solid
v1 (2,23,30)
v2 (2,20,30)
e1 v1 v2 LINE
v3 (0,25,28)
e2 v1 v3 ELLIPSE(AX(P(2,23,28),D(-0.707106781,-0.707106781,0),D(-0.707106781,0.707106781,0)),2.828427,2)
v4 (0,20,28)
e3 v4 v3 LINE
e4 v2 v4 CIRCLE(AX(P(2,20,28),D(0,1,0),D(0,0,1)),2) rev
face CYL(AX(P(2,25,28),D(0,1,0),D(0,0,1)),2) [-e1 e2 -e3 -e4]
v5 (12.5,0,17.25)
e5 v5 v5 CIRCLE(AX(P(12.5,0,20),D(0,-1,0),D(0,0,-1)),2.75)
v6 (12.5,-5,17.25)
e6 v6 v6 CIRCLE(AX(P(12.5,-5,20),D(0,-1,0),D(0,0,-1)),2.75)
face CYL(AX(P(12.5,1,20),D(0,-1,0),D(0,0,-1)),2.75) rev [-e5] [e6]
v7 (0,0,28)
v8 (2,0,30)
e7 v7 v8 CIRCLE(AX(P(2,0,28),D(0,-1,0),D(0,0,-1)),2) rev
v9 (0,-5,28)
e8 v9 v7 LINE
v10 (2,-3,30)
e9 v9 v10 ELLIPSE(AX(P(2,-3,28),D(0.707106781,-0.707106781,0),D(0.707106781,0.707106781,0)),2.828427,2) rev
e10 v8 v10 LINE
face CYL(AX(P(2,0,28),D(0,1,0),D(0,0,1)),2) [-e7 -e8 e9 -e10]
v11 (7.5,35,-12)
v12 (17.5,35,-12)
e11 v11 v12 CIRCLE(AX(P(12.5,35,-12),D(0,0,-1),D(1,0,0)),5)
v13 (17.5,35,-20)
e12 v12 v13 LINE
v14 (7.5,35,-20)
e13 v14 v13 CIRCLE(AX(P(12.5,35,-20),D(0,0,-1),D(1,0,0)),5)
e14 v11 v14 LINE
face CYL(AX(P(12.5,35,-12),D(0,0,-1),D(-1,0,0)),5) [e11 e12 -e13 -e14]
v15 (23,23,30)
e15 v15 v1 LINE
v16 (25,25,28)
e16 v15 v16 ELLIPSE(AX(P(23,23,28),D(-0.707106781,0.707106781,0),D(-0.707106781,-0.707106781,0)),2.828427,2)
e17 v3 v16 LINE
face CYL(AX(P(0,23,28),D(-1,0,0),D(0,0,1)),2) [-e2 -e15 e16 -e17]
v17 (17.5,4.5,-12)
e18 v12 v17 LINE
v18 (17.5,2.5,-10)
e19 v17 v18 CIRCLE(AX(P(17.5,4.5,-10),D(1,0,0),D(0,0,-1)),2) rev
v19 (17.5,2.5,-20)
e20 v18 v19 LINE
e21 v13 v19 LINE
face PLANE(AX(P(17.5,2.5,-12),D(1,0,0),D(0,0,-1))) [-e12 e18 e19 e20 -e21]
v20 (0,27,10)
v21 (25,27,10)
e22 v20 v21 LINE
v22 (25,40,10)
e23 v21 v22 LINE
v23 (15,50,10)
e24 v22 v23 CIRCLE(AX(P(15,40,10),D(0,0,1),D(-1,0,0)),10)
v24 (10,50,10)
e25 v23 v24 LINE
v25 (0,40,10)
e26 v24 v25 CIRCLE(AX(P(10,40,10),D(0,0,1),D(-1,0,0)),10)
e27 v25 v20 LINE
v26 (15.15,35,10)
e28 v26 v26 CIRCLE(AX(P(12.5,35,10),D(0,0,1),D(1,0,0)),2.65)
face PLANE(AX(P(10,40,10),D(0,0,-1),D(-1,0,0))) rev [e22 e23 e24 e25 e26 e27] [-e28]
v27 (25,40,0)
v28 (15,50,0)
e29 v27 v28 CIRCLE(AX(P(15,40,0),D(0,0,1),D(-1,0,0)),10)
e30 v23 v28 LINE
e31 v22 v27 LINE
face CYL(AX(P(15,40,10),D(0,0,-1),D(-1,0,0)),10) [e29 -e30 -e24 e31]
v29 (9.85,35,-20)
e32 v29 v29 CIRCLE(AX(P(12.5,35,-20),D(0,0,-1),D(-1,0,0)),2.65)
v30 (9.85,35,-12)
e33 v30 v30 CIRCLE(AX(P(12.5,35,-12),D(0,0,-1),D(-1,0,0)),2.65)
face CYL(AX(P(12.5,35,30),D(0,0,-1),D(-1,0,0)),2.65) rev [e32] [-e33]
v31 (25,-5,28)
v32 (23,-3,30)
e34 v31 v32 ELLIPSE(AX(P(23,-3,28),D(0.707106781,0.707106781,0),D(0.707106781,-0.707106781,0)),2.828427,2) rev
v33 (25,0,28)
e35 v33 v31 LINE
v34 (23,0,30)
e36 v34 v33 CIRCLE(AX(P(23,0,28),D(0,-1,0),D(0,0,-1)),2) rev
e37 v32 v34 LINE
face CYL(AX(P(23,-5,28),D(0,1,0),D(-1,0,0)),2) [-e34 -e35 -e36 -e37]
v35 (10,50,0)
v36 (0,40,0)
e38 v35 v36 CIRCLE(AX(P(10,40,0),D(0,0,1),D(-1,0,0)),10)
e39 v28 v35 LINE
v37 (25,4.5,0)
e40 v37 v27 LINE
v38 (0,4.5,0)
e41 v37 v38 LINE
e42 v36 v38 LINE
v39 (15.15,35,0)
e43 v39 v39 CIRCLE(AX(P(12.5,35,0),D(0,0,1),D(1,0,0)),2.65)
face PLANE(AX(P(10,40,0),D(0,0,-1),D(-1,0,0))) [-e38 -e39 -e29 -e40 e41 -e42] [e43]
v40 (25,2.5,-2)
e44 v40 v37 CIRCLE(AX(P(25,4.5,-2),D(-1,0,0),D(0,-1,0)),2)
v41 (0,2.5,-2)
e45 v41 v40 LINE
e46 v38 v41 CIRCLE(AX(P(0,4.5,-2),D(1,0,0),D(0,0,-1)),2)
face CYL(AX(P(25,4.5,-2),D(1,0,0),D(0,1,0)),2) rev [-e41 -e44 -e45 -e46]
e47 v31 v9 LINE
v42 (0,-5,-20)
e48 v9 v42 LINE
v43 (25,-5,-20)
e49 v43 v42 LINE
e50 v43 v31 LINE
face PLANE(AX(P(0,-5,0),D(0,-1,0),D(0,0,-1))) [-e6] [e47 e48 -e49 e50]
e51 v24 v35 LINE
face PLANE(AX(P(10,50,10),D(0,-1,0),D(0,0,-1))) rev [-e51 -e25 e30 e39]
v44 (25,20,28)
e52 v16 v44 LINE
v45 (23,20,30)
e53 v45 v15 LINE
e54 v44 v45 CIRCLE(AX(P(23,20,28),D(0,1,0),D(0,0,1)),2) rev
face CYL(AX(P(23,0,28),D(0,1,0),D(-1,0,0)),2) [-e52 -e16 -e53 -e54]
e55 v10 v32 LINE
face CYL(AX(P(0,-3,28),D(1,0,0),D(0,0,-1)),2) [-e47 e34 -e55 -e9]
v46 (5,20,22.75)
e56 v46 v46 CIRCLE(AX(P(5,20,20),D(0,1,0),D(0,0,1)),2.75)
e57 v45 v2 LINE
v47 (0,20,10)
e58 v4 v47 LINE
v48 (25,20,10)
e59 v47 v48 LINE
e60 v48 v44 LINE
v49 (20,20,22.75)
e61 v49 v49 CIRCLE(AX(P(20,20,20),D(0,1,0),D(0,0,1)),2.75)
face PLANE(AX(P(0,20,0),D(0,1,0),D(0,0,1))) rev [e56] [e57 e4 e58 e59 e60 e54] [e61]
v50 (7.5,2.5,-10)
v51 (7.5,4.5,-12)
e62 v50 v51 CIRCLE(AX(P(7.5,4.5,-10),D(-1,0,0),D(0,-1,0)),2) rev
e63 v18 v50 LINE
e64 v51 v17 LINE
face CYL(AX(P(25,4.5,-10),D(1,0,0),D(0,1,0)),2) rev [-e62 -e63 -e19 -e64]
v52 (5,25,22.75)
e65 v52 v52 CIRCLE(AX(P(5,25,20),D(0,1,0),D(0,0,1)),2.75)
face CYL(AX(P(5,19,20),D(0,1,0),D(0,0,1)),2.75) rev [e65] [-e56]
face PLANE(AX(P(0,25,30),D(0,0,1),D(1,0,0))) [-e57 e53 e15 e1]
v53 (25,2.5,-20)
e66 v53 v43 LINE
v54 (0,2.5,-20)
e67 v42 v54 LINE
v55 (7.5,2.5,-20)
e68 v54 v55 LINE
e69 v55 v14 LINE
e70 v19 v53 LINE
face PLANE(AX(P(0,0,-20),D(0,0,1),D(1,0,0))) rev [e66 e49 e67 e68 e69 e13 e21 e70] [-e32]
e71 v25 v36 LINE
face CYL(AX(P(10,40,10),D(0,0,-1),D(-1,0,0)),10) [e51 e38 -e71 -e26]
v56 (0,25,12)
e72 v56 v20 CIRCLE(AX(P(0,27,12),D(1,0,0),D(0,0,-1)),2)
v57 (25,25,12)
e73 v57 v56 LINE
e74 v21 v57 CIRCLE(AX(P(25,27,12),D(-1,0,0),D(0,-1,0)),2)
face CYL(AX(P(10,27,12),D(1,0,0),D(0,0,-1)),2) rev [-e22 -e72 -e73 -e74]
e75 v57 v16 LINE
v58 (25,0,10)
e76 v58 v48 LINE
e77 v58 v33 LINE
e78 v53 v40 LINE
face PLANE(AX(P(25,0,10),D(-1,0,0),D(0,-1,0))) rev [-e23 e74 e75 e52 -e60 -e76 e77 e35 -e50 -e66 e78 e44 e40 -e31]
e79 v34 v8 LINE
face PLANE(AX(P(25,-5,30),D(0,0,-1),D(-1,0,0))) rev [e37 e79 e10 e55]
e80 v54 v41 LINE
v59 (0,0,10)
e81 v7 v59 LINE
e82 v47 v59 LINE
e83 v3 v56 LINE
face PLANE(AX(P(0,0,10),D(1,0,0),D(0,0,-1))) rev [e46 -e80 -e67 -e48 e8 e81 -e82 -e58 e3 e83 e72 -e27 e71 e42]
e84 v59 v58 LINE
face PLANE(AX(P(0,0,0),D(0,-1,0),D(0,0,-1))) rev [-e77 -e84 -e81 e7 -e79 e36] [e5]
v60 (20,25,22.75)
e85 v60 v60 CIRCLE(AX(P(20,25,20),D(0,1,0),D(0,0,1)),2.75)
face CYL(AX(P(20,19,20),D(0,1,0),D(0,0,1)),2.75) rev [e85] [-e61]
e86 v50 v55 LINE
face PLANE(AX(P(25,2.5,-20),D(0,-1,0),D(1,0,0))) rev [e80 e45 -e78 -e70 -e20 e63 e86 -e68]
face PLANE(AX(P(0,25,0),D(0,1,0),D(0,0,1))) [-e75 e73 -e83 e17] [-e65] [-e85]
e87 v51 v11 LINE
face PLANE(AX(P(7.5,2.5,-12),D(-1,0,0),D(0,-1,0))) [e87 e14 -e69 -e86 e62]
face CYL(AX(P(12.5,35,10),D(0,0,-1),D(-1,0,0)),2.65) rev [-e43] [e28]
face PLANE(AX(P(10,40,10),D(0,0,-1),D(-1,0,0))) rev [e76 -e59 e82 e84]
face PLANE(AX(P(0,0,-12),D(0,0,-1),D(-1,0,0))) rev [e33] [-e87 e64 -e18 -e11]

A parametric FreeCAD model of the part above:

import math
import FreeCAD as App
import Part
import Sketcher
from FreeCAD import Vector


def edges_at(feature, points):
    """Names of the edges that pass closest to the given points."""
    edges = feature.Shape.Edges
    near = lambda p: min(range(len(edges)), key=lambda i: edges[i].distToShape(Part.Vertex(*p))[0])
    return sorted({f"Edge{near(p) + 1}" for p in points})

doc = App.newDocument("Part")
body = doc.addObject("PartDesign::Body", "Body")

# Sketch on XY plane
sketch1 = doc.addObject("Sketcher::SketchObject", "Sketch")
body.addObject(sketch1)
sketch1.AttachmentSupport = (doc.XY_Plane, [""])
sketch1.MapMode = "FlatFace"
sketch1.addGeometry([
    Part.LineSegment(Vector(0, 0, 0), Vector(25, 0, 0)),  # 0
    Part.LineSegment(Vector(25, 0, 0), Vector(25, 40, 0)),  # 1
    Part.ArcOfCircle(Part.Circle(Vector(15, 40, 0), Vector(0, 0, 1), 10), math.radians(0), math.radians(90)),  # 2
    Part.LineSegment(Vector(15, 50, 0), Vector(10, 50, 0)),  # 3
    Part.ArcOfCircle(Part.Circle(Vector(10, 40, 0), Vector(0, 0, 1), 10), math.radians(90), math.radians(180)),  # 4
    Part.LineSegment(Vector(0, 40, 0), Vector(0, 0, 0)),  # 5
    Part.Circle(Vector(12.5, 35, 0), Vector(0, 0, 1), 2.6),  # 6
], False)
sketch1.addConstraint([
    Sketcher.Constraint("Coincident", 0, 2, 1, 1),
    Sketcher.Constraint("Tangent", 1, 2, 2, 1),
    Sketcher.Constraint("Tangent", 2, 2, 3, 1),
    Sketcher.Constraint("Tangent", 3, 2, 4, 1),
    Sketcher.Constraint("Tangent", 4, 2, 5, 1),
    Sketcher.Constraint("Coincident", 5, 2, 0, 1),
    Sketcher.Constraint("Horizontal", 0),
    Sketcher.Constraint("Vertical", 1),
    Sketcher.Constraint("Horizontal", 3),
    Sketcher.Constraint("Vertical", 5),
    Sketcher.Constraint("Coincident", 5, 2, -1, 1),
    Sketcher.Constraint("Equal", 2, 4),
    Sketcher.Constraint("Radius", 2, 10.0),
    Sketcher.Constraint("Diameter", 6, 5.3),
    Sketcher.Constraint("DistanceX", 0, 1, 0, 2, 25.0),
    Sketcher.Constraint("DistanceY", 1, 1, 1, 2, 40.0),
    Sketcher.Constraint("DistanceY", -1, 1, 6, 3, 35.0),
    Sketcher.Constraint("DistanceX", -1, 1, 6, 3, 12.5),
])
pad1 = doc.addObject("PartDesign::Pad", "Pad")
body.addObject(pad1)
pad1.Profile = sketch1
pad1.Length = 10

# Sketch on XZ plane
sketch2 = doc.addObject("Sketcher::SketchObject", "Sketch001")
body.addObject(sketch2)
sketch2.AttachmentSupport = (doc.XZ_Plane, [""])
sketch2.MapMode = "FlatFace"
sketch2.AttachmentOffset = App.Placement(Vector(0, 0, -20), App.Rotation())
sketch2.addGeometry([
    Part.LineSegment(Vector(0, 30, 0), Vector(0, 10, 0)),
    Part.LineSegment(Vector(0, 10, 0), Vector(25, 10, 0)),
    Part.LineSegment(Vector(25, 10, 0), Vector(25, 30, 0)),
    Part.LineSegment(Vector(25, 30, 0), Vector(0, 30, 0)),
], False)
sketch2.addConstraint([
    Sketcher.Constraint("Coincident", 0, 2, 1, 1),
    Sketcher.Constraint("Coincident", 1, 2, 2, 1),
    Sketcher.Constraint("Coincident", 2, 2, 3, 1),
    Sketcher.Constraint("Coincident", 3, 2, 0, 1),
    Sketcher.Constraint("Vertical", 0),
    Sketcher.Constraint("Horizontal", 1),
    Sketcher.Constraint("Vertical", 2),
    Sketcher.Constraint("Horizontal", 3),
    Sketcher.Constraint("PointOnObject", 0, 2, -2),
    Sketcher.Constraint("DistanceX", 1, 1, 1, 2, 25.0),
    Sketcher.Constraint("DistanceY", 0, 2, 0, 1, 20.0),
    Sketcher.Constraint("DistanceY", -1, 1, 0, 2, 10.0),
])
pad2 = doc.addObject("PartDesign::Pad", "Pad001")
body.addObject(pad2)
pad2.Profile = sketch2
pad2.Length = 5
pad2.Reversed = True

# Sketch on XZ plane
sketch3 = doc.addObject("Sketcher::SketchObject", "Sketch002")
body.addObject(sketch3)
sketch3.AttachmentSupport = (doc.XZ_Plane, [""])
sketch3.MapMode = "FlatFace"
sketch3.addGeometry([
    Part.LineSegment(Vector(0, 0, 0), Vector(25, 0, 0)),
    Part.LineSegment(Vector(25, 0, 0), Vector(25, 30, 0)),
    Part.LineSegment(Vector(25, 30, 0), Vector(0, 30, 0)),
    Part.LineSegment(Vector(0, 30, 0), Vector(0, 0, 0)),
], False)
sketch3.addConstraint([
    Sketcher.Constraint("Coincident", 0, 2, 1, 1),
    Sketcher.Constraint("Coincident", 1, 2, 2, 1),
    Sketcher.Constraint("Coincident", 2, 2, 3, 1),
    Sketcher.Constraint("Coincident", 3, 2, 0, 1),
    Sketcher.Constraint("Horizontal", 0),
    Sketcher.Constraint("Vertical", 1),
    Sketcher.Constraint("Horizontal", 2),
    Sketcher.Constraint("Vertical", 3),
    Sketcher.Constraint("Coincident", 3, 2, -1, 1),
    Sketcher.Constraint("DistanceX", 0, 1, 0, 2, 25.0),
    Sketcher.Constraint("DistanceY", 1, 1, 1, 2, 30.0),
])
pad3 = doc.addObject("PartDesign::Pad", "Pad002")
body.addObject(pad3)
pad3.Profile = sketch3
pad3.Length = 5

# Sketch on XY plane
sketch4 = doc.addObject("Sketcher::SketchObject", "Sketch003")
body.addObject(sketch4)
sketch4.AttachmentSupport = (doc.XY_Plane, [""])
sketch4.MapMode = "FlatFace"
sketch4.addGeometry([
    Part.LineSegment(Vector(25, 2, 0), Vector(25, -5, 0)),
    Part.LineSegment(Vector(25, -5, 0), Vector(0, -5, 0)),
    Part.LineSegment(Vector(0, -5, 0), Vector(0, 2, 0)),
    Part.LineSegment(Vector(0, 2, 0), Vector(25, 2, 0)),
], False)
sketch4.addConstraint([
    Sketcher.Constraint("Coincident", 0, 2, 1, 1),
    Sketcher.Constraint("Coincident", 1, 2, 2, 1),
    Sketcher.Constraint("Coincident", 2, 2, 3, 1),
    Sketcher.Constraint("Coincident", 3, 2, 0, 1),
    Sketcher.Constraint("Vertical", 0),
    Sketcher.Constraint("Horizontal", 1),
    Sketcher.Constraint("Vertical", 2),
    Sketcher.Constraint("Horizontal", 3),
    Sketcher.Constraint("PointOnObject", 1, 2, -2),
    Sketcher.Constraint("DistanceX", 1, 2, 1, 1, 25.0),
    Sketcher.Constraint("DistanceY", 0, 2, 0, 1, 7.5),
    Sketcher.Constraint("DistanceY", 0, 2, -1, 1, 5.0),
])
pad4 = doc.addObject("PartDesign::Pad", "Pad003")
body.addObject(pad4)
pad4.Profile = sketch4
pad4.Length = 20
pad4.Reversed = True

# Sketch on XY plane
sketch5 = doc.addObject("Sketcher::SketchObject", "Sketch004")
body.addObject(sketch5)
sketch5.AttachmentSupport = (doc.XY_Plane, [""])
sketch5.MapMode = "FlatFace"
sketch5.AttachmentOffset = App.Placement(Vector(0, 0, -20), App.Rotation())
sketch5.addGeometry([
    Part.LineSegment(Vector(18, 22, 0), Vector(18, 2, 0)),
    Part.LineSegment(Vector(18, 2, 0), Vector(8, 2, 0)),
    Part.LineSegment(Vector(8, 2, 0), Vector(8, 22, 0)),
    Part.LineSegment(Vector(8, 22, 0), Vector(18, 22, 0)),
], False)
sketch5.addConstraint([
    Sketcher.Constraint("Coincident", 0, 2, 1, 1),
    Sketcher.Constraint("Coincident", 1, 2, 2, 1),
    Sketcher.Constraint("Coincident", 2, 2, 3, 1),
    Sketcher.Constraint("Coincident", 3, 2, 0, 1),
    Sketcher.Constraint("Vertical", 0),
    Sketcher.Constraint("Horizontal", 1),
    Sketcher.Constraint("Vertical", 2),
    Sketcher.Constraint("Horizontal", 3),
    Sketcher.Constraint("DistanceX", 1, 2, 1, 1, 10.0),
    Sketcher.Constraint("DistanceY", 0, 2, 0, 1, 20.0),
    Sketcher.Constraint("DistanceX", -1, 1, 0, 2, 17.5),
    Sketcher.Constraint("DistanceY", -1, 1, 0, 2, 2.5),
])
pad5 = doc.addObject("PartDesign::Pad", "Pad004")
body.addObject(pad5)
pad5.Profile = sketch5
pad5.Length = 8
doc.recompute()

fillet = doc.addObject("PartDesign::Fillet", "Fillet")
body.addObject(fillet)
fillet.Base = (pad5, edges_at(pad5, [(12.5, 2.5, 0), (12.5, 2.5, -12)]))
fillet.Radius = 2

# Sketch on XZ plane
sketch6 = doc.addObject("Sketcher::SketchObject", "Sketch005")
body.addObject(sketch6)
sketch6.AttachmentSupport = (doc.XZ_Plane, [""])
sketch6.MapMode = "FlatFace"
sketch6.AttachmentOffset = App.Placement(Vector(0, 0, -25), App.Rotation())
sketch6.addGeometry([
    Part.Circle(Vector(5, 20, 0), Vector(0, 0, 1), 2.8),
    Part.Circle(Vector(20, 20, 0), Vector(0, 0, 1), 2.8),
], False)
sketch6.addConstraint([
    Sketcher.Constraint("Equal", 0, 1),
    Sketcher.Constraint("Horizontal", 0, 3, 1, 3),
    Sketcher.Constraint("Diameter", 0, 5.5),
    Sketcher.Constraint("DistanceX", -1, 1, 0, 3, 5.0),
    Sketcher.Constraint("DistanceY", -1, 1, 0, 3, 20.0),
    Sketcher.Constraint("DistanceX", -1, 1, 1, 3, 20.0),
])
pocket1 = doc.addObject("PartDesign::Pocket", "Pocket")
body.addObject(pocket1)
pocket1.Profile = sketch6
pocket1.Length = 6
pocket1.Reversed = True

# Sketch on XZ plane
sketch7 = doc.addObject("Sketcher::SketchObject", "Sketch006")
body.addObject(sketch7)
sketch7.AttachmentSupport = (doc.XZ_Plane, [""])
sketch7.MapMode = "FlatFace"
sketch7.AttachmentOffset = App.Placement(Vector(0, 0, 5), App.Rotation())
sketch7.addGeometry(Part.Circle(Vector(12.5, 20, 0), Vector(0, 0, 1), 2.8), False)
sketch7.addConstraint([
    Sketcher.Constraint("Diameter", 0, 5.5),
    Sketcher.Constraint("DistanceY", -1, 1, 0, 3, 20.0),
    Sketcher.Constraint("DistanceX", -1, 1, 0, 3, 12.5),
])
pocket2 = doc.addObject("PartDesign::Pocket", "Pocket001")
body.addObject(pocket2)
pocket2.Profile = sketch7
pocket2.Length = 6

# Sketch on XY plane
sketch8 = doc.addObject("Sketcher::SketchObject", "Sketch007")
body.addObject(sketch8)
sketch8.AttachmentSupport = (doc.XY_Plane, [""])
sketch8.MapMode = "FlatFace"
sketch8.AttachmentOffset = App.Placement(Vector(0, 0, -12), App.Rotation())
sketch8.addGeometry([
    Part.LineSegment(Vector(18, 35, 0), Vector(18, 22, 0)),
    Part.LineSegment(Vector(18, 22, 0), Vector(8, 22, 0)),
    Part.LineSegment(Vector(8, 22, 0), Vector(8, 35, 0)),
    Part.ArcOfCircle(Part.Circle(Vector(12, 35, 0), Vector(0, 0, 1), 5), math.radians(0), math.radians(180)),
], False)
sketch8.addConstraint([
    Sketcher.Constraint("Coincident", 0, 2, 1, 1),
    Sketcher.Constraint("Coincident", 1, 2, 2, 1),
    Sketcher.Constraint("Tangent", 2, 2, 3, 2),
    Sketcher.Constraint("Tangent", 3, 1, 0, 1),
    Sketcher.Constraint("Vertical", 0),
    Sketcher.Constraint("Horizontal", 1),
    Sketcher.Constraint("Vertical", 2),
    Sketcher.Constraint("Radius", 3, 5.0),
    Sketcher.Constraint("DistanceY", 0, 2, 0, 1, 12.5),
    Sketcher.Constraint("DistanceY", -1, 1, 3, 3, 35.0),
    Sketcher.Constraint("DistanceX", -1, 1, 3, 3, 12.5),
])
pad6 = doc.addObject("PartDesign::Pad", "Pad005")
body.addObject(pad6)
pad6.Profile = sketch8
pad6.Length = 8
pad6.Reversed = True

# Sketch on XY plane
sketch9 = doc.addObject("Sketcher::SketchObject", "Sketch008")
body.addObject(sketch9)
sketch9.AttachmentSupport = (doc.XY_Plane, [""])
sketch9.MapMode = "FlatFace"
sketch9.AttachmentOffset = App.Placement(Vector(0, 0, -20), App.Rotation())
sketch9.addGeometry(Part.Circle(Vector(12.5, 35, 0), Vector(0, 0, 1), 2.6), False)
sketch9.addConstraint([
    Sketcher.Constraint("Diameter", 0, 5.3),
    Sketcher.Constraint("DistanceY", -1, 1, 0, 3, 35.0),
    Sketcher.Constraint("DistanceX", -1, 1, 0, 3, 12.5),
])
pocket3 = doc.addObject("PartDesign::Pocket", "Pocket002")
body.addObject(pocket3)
pocket3.Profile = sketch9
pocket3.Length = 50
pocket3.Reversed = True
doc.recompute()

fillet2 = doc.addObject("PartDesign::Fillet", "Fillet001")
body.addObject(fillet2)
fillet2.Base = (pocket3, edges_at(pocket3, [(12.5, 25, 10)]))
fillet2.Radius = 2
doc.recompute()

fillet3 = doc.addObject("PartDesign::Fillet", "Fillet002")
body.addObject(fillet3)
fillet3.Base = (fillet2, edges_at(fillet2, [
    (12.5, 25, 30),
    (0, 22.5, 30),
    (25, 22.5, 30),
    (25, -2.5, 30),
    (0, -2.5, 30),
    (12.5, -5, 30),
]))
fillet3.Radius = 2

doc.recompute()
